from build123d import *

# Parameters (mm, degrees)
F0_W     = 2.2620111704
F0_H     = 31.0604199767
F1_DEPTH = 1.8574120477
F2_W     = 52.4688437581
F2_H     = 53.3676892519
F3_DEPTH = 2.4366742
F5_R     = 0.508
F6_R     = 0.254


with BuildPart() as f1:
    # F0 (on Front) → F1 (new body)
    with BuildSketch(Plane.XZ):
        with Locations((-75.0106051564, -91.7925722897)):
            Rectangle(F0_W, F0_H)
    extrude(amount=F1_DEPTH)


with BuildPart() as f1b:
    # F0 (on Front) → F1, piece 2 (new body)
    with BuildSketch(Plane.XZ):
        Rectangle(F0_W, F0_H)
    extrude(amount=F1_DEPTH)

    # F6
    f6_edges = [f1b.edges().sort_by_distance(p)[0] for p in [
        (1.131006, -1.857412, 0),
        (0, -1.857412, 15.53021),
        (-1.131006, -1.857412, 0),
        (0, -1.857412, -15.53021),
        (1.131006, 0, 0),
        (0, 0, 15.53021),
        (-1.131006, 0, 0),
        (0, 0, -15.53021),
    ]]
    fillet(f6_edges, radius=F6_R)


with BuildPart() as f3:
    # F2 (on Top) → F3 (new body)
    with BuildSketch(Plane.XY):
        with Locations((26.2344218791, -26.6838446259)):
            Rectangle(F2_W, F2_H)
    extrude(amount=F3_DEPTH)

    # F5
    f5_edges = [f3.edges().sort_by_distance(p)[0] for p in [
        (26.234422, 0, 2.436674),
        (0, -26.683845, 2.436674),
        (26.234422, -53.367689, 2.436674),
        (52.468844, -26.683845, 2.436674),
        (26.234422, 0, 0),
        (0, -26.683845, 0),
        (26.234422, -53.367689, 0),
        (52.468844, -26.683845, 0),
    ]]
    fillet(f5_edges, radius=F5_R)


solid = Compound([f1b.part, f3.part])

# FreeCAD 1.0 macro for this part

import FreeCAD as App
import Part
import Sketcher

V = App.Vector
Q = App.Units.Quantity


def edges_at(feature, points):
    """Names of the edges that pass closest to the given points."""
    edges = feature.Shape.Edges
    near = lambda p: min(range(len(edges)), key=lambda i: edges[i].distToShape(Part.Vertex(*p))[0])
    return sorted({f"Edge{near(p) + 1}" for p in points})


def add_polygon(sketch, points):
    """Adds a closed chain of lines whose ends are joined by coincident constraints."""
    first, n = sketch.GeometryCount, len(points)
    for a, b in zip(points, points[1:] + points[:1]):
        sketch.addGeometry(Part.LineSegment(App.Vector(*a, 0), App.Vector(*b, 0)), False)
    for i in range(n):
        sketch.addConstraint(Sketcher.Constraint("Coincident", first + i, 2, first + (i + 1) % n, 1))

doc = App.newDocument("Part")
body = doc.addObject("PartDesign::Body", "Body")

# Sketch on XZ plane
sketch1 = body.newObject("Sketcher::SketchObject", "Sketch")
sketch1.AttachmentSupport = (doc.getObject("XZ_Plane"), [""])
sketch1.MapMode = "FlatFace"
add_polygon(sketch1, [(-76.1, -76.3), (-76.1, -107.3), (-73.9, -107.3), (-73.9, -76.3)])  # lines 0-3
sketch1.addConstraint([
    Sketcher.Constraint("Vertical", 0),
    Sketcher.Constraint("Horizontal", 1),
    Sketcher.Constraint("Vertical", 2),
    Sketcher.Constraint("Horizontal", 3),
    Sketcher.Constraint("DistanceX", 1, 1, 1, 2, 2.262011),
    Sketcher.Constraint("DistanceY", 0, 2, 0, 1, 31.06042),
    Sketcher.Constraint("DistanceX", 1, 2, -1, 1, 73.8796),
    Sketcher.Constraint("DistanceY", 0, 2, -1, 1, 107.322782),
])
pad1 = body.newObject("PartDesign::Pad", "Pad")
pad1.Profile = sketch1
pad1.Length = 1.857412
body2 = doc.addObject("PartDesign::Body", "Body001")

# Sketch on XZ plane
sketch2 = body2.newObject("Sketcher::SketchObject", "Sketch001")
sketch2.AttachmentSupport = (doc.getObject("XZ_Plane001"), [""])
sketch2.MapMode = "FlatFace"
add_polygon(sketch2, [(-1.1, 15.5), (-1.1, -15.5), (1.1, -15.5), (1.1, 15.5)])  # lines 0-3
sketch2.addConstraint([
    Sketcher.Constraint("Vertical", 0),
    Sketcher.Constraint("Horizontal", 1),
    Sketcher.Constraint("Vertical", 2),
    Sketcher.Constraint("Horizontal", 3),
    Sketcher.Constraint("Symmetric", 0, 2, 2, 2, -1, 1),
    Sketcher.Constraint("DistanceX", 1, 1, 1, 2, 2.262011),
    Sketcher.Constraint("DistanceY", 0, 2, 0, 1, 31.06042),
])
pad2 = body2.newObject("PartDesign::Pad", "Pad001")
pad2.Profile = sketch2
pad2.Length = 1.857412
doc.recompute()

fillet = body2.newObject("PartDesign::Fillet", "Fillet")
fillet.Base = (pad2, edges_at(pad2, [
    (1.131, -1.857, 0),
    (0, -1.857, 15.53),
    (-1.131, -1.857, 0),
    (0, -1.857, -15.53),
    (1.131, 0, 0),
    (0, 0, 15.53),
    (-1.131, 0, 0),
    (0, 0, -15.53),
]))
fillet.Radius = Q("0.01 in")
body3 = doc.addObject("PartDesign::Body", "Body002")

# Sketch on XY plane
sketch3 = body3.newObject("Sketcher::SketchObject", "Sketch002")
sketch3.AttachmentSupport = (doc.getObject("XY_Plane002"), [""])
sketch3.MapMode = "FlatFace"
add_polygon(sketch3, [(0, 0), (0, -53), (52, -53), (52, 0)])  # lines 0-3
sketch3.addConstraint([
    Sketcher.Constraint("Vertical", 0),
    Sketcher.Constraint("Horizontal", 1),
    Sketcher.Constraint("Vertical", 2),
    Sketcher.Constraint("Horizontal", 3),
    Sketcher.Constraint("Coincident", 3, 2, -1, 1),
    Sketcher.Constraint("DistanceY", 0, 2, 0, 1, 53.367689),
    Sketcher.Constraint("DistanceX", 1, 1, 1, 2, 52.468844),
])
pad3 = body3.newObject("PartDesign::Pad", "Pad002")
pad3.Profile = sketch3
pad3.Length = 2.436674
doc.recompute()

fillet2 = body3.newObject("PartDesign::Fillet", "Fillet001")
fillet2.Base = (pad3, edges_at(pad3, [
    (26.234, 0, 2.437),
    (0, -26.684, 2.437),
    (26.234, -53.368, 2.437),
    (52.469, -26.684, 2.437),
    (26.234, 0, 0),
    (0, -26.684, 0),
    (26.234, -53.368, 0),
    (52.469, -26.684, 0),
]))
fillet2.Radius = Q("0.02 in")
body.Visibility = False

doc.recompute()
